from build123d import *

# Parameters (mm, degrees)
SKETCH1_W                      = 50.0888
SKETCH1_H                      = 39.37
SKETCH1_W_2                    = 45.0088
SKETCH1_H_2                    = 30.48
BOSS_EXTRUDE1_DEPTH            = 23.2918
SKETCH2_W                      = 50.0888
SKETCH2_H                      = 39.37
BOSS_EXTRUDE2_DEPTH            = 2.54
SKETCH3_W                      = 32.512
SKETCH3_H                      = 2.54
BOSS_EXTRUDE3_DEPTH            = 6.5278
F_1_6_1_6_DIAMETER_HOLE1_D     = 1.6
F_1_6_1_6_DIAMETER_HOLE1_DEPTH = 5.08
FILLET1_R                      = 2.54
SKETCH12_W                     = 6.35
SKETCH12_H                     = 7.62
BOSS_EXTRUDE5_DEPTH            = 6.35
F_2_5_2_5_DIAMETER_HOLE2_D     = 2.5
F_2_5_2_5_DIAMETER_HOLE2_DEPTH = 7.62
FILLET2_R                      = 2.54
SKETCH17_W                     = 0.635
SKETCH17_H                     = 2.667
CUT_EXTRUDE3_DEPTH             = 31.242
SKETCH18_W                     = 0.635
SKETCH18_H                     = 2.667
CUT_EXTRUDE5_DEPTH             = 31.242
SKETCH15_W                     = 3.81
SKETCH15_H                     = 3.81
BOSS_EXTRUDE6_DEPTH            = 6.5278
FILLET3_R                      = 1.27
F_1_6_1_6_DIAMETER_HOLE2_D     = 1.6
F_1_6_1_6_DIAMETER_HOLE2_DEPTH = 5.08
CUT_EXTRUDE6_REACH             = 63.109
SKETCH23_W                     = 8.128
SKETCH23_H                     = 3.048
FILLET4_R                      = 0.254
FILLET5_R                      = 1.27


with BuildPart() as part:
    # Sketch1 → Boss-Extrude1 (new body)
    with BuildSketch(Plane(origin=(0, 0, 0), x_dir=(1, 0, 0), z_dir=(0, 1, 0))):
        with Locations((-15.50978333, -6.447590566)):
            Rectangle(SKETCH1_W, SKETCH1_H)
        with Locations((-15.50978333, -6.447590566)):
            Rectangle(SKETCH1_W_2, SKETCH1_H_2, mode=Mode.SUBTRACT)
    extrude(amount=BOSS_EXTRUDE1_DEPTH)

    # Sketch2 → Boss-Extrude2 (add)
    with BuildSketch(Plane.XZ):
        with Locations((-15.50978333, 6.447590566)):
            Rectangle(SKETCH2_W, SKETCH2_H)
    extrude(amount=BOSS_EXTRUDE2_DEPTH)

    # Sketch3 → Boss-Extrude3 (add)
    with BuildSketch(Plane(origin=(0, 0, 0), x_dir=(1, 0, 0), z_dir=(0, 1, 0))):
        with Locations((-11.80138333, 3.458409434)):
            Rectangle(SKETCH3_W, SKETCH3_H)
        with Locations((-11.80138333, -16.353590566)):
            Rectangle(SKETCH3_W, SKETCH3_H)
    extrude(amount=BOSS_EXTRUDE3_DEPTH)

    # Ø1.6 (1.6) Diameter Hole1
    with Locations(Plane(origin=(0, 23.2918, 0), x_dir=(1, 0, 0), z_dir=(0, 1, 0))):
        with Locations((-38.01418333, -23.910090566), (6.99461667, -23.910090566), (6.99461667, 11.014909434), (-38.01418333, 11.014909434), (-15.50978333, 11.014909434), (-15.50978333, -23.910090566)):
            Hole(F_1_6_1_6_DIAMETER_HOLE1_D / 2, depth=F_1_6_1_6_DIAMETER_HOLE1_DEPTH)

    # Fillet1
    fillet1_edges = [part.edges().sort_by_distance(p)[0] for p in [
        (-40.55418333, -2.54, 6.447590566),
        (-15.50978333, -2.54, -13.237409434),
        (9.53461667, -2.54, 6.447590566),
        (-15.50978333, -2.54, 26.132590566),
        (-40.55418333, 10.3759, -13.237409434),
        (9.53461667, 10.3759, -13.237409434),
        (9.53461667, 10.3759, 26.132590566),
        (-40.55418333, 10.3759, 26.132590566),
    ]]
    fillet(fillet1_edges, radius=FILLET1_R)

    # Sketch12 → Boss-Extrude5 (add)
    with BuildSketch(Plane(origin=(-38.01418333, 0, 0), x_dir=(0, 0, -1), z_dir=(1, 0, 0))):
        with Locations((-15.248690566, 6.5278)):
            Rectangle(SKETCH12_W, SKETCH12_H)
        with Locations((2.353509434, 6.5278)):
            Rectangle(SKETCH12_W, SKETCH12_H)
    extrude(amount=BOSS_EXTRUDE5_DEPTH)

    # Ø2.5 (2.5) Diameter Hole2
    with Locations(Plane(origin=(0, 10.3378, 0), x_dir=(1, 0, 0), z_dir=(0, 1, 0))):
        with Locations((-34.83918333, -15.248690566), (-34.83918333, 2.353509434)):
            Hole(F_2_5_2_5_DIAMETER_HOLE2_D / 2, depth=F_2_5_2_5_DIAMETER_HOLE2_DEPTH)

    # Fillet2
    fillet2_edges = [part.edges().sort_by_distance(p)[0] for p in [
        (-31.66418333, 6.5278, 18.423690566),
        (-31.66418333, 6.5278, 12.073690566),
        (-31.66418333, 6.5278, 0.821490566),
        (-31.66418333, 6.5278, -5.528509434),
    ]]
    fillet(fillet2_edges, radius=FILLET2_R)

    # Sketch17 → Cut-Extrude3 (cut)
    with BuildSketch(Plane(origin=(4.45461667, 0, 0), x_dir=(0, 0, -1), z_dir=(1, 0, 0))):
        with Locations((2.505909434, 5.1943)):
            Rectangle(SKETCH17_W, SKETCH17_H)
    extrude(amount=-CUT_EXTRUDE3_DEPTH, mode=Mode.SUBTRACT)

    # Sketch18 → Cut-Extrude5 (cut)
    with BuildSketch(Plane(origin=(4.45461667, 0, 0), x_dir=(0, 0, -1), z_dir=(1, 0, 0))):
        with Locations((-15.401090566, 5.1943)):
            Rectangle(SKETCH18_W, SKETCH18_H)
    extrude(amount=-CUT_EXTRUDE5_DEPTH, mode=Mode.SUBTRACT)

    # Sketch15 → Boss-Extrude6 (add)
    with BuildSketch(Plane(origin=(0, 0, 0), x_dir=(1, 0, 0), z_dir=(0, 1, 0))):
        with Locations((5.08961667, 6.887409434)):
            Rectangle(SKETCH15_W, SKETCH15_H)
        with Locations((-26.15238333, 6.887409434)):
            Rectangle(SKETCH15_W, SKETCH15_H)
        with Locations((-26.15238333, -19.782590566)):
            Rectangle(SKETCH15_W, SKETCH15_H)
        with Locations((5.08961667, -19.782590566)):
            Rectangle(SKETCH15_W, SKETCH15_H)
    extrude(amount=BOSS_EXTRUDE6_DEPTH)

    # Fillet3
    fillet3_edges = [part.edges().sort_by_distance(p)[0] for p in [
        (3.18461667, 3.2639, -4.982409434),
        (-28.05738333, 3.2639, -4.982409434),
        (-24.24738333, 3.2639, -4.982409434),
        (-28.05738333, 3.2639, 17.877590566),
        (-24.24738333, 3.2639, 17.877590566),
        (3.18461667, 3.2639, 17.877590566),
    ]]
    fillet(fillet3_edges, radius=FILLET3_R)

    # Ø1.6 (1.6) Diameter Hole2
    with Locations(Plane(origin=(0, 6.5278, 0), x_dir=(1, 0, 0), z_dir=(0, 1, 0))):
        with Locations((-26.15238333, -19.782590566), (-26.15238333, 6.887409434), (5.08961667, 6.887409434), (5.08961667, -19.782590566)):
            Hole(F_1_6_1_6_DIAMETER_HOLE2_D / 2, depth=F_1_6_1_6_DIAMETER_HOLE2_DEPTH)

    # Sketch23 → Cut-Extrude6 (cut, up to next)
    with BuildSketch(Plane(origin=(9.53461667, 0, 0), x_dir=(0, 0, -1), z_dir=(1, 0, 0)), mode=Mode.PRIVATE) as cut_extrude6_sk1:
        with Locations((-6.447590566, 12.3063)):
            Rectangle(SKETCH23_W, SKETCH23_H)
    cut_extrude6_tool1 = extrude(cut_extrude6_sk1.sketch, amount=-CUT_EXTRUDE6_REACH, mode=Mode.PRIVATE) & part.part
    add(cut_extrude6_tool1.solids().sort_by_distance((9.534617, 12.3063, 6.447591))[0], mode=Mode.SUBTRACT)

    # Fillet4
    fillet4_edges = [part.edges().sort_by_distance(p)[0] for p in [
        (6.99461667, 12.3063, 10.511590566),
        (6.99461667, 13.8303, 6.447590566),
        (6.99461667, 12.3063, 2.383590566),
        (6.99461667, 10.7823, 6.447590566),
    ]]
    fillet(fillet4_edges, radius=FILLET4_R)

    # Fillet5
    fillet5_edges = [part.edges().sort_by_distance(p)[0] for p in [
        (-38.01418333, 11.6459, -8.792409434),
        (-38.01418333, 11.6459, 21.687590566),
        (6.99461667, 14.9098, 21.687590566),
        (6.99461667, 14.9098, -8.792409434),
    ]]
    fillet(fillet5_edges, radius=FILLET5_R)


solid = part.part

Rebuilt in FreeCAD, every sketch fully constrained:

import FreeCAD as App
import Part
import Sketcher
Q = App.Units.Quantity


def edges_at(feature, points):
    """Names of the edges that pass closest to the given points."""
    edges = feature.Shape.Edges
    near = lambda p: min(range(len(edges)), key=lambda i: edges[i].distToShape(Part.Vertex(*p))[0])
    return sorted({f"Edge{near(p) + 1}" for p in points})

doc = App.newDocument("Part")
body = doc.addObject("PartDesign::Body", "Body")

sketch1 = body.newObject("Sketcher::SketchObject", "Sketch")
sketch1.AttachmentSupport = (doc.getObject("XZ_Plane"), [""])
sketch1.MapMode = "FlatFace"
sketch1.addGeometry(Part.LineSegment(App.Vector(-41, -13, 0), App.Vector(-41, 26, 0)), False)
sketch1.addGeometry(Part.LineSegment(App.Vector(-41, 26, 0), App.Vector(10, 26, 0)), False)
sketch1.addGeometry(Part.LineSegment(App.Vector(10, 26, 0), App.Vector(10, -13, 0)), False)
sketch1.addGeometry(Part.LineSegment(App.Vector(10, -13, 0), App.Vector(-41, -13, 0)), False)
sketch1.addGeometry(Part.LineSegment(App.Vector(7, 22, 0), App.Vector(-38, 22, 0)), False)
sketch1.addGeometry(Part.LineSegment(App.Vector(-38, 22, 0), App.Vector(-38, -9, 0)), False)
sketch1.addGeometry(Part.LineSegment(App.Vector(-38, -9, 0), App.Vector(7, -9, 0)), False)
sketch1.addGeometry(Part.LineSegment(App.Vector(7, -9, 0), App.Vector(7, 22, 0)), False)
sketch1.addConstraint(Sketcher.Constraint("Coincident", 0, 2, 1, 1))
sketch1.addConstraint(Sketcher.Constraint("Coincident", 1, 2, 2, 1))
sketch1.addConstraint(Sketcher.Constraint("Coincident", 2, 2, 3, 1))
sketch1.addConstraint(Sketcher.Constraint("Coincident", 3, 2, 0, 1))
sketch1.addConstraint(Sketcher.Constraint("Coincident", 4, 2, 5, 1))
sketch1.addConstraint(Sketcher.Constraint("Coincident", 5, 2, 6, 1))
sketch1.addConstraint(Sketcher.Constraint("Coincident", 6, 2, 7, 1))
sketch1.addConstraint(Sketcher.Constraint("Coincident", 7, 2, 4, 1))
sketch1.addConstraint(Sketcher.Constraint("Vertical", 0))
sketch1.addConstraint(Sketcher.Constraint("Horizontal", 1))
sketch1.addConstraint(Sketcher.Constraint("Vertical", 2))
sketch1.addConstraint(Sketcher.Constraint("Horizontal", 3))
sketch1.addConstraint(Sketcher.Constraint("Horizontal", 4))
sketch1.addConstraint(Sketcher.Constraint("Vertical", 5))
sketch1.addConstraint(Sketcher.Constraint("Horizontal", 6))
sketch1.addConstraint(Sketcher.Constraint("Vertical", 7))
sketch1.addConstraint(Sketcher.Constraint("DistanceY", 5, 2, 5, 1, Q("1.2 in")))
sketch1.addConstraint(Sketcher.Constraint("DistanceY", 0, 1, 0, 2, Q("1.55 in")))
sketch1.addConstraint(Sketcher.Constraint("DistanceX", 0, 2, 4, 2, Q("0.1 in")))
sketch1.addConstraint(Sketcher.Constraint("DistanceX", 6, 2, 2, 2, Q("0.1 in")))
sketch1.addConstraint(Sketcher.Constraint("DistanceX", 1, 1, 1, 2, Q("1.972 in")))
sketch1.addConstraint(Sketcher.Constraint("DistanceY", 4, 2, 0, 2, Q("0.175 in")))
sketch1.addConstraint(Sketcher.Constraint("DistanceY", -1, 1, 0, 2, 26.132591))
sketch1.addConstraint(Sketcher.Constraint("DistanceX", 0, 2, -1, 1, 40.554183))
pad1 = body.newObject("PartDesign::Pad", "Pad")
pad1.Profile = sketch1
pad1.Length = Q("0.917 in")
pad1.Reversed = True

sketch2 = body.newObject("Sketcher::SketchObject", "Sketch001")
sketch2.AttachmentSupport = (doc.getObject("XZ_Plane"), [""])
sketch2.MapMode = "FlatFace"
sketch2.addGeometry(Part.LineSegment(App.Vector(-41, 26, 0), App.Vector(-41, -13, 0)), False)
sketch2.addGeometry(Part.LineSegment(App.Vector(-41, -13, 0), App.Vector(10, -13, 0)), False)
sketch2.addGeometry(Part.LineSegment(App.Vector(10, -13, 0), App.Vector(10, 26, 0)), False)
sketch2.addGeometry(Part.LineSegment(App.Vector(10, 26, 0), App.Vector(-41, 26, 0)), False)
sketch2.addConstraint(Sketcher.Constraint("Coincident", 0, 2, 1, 1))
sketch2.addConstraint(Sketcher.Constraint("Coincident", 1, 2, 2, 1))
sketch2.addConstraint(Sketcher.Constraint("Coincident", 2, 2, 3, 1))
sketch2.addConstraint(Sketcher.Constraint("Coincident", 3, 2, 0, 1))
sketch2.addConstraint(Sketcher.Constraint("Vertical", 0))
sketch2.addConstraint(Sketcher.Constraint("Horizontal", 1))
sketch2.addConstraint(Sketcher.Constraint("Vertical", 2))
sketch2.addConstraint(Sketcher.Constraint("Horizontal", 3))
sketch2.addConstraint(Sketcher.Constraint("DistanceY", 0, 2, 0, 1, Q("1.55 in")))
sketch2.addConstraint(Sketcher.Constraint("DistanceX", 1, 1, 1, 2, Q("1.972 in")))
sketch2.addConstraint(Sketcher.Constraint("DistanceY", 0, 2, -1, 1, 13.237409))
sketch2.addConstraint(Sketcher.Constraint("DistanceX", 0, 2, -1, 1, 40.554183))
pad2 = body.newObject("PartDesign::Pad", "Pad001")
pad2.Profile = sketch2
pad2.Length = Q("0.1 in")

sketch3 = body.newObject("Sketcher::SketchObject", "Sketch002")
sketch3.AttachmentSupport = (doc.getObject("XZ_Plane"), [""])
sketch3.MapMode = "FlatFace"
sketch3.addGeometry(Part.LineSegment(App.Vector(-28.1, -4.7, 0), App.Vector(-28.1, -2.2, 0)), False)
sketch3.addGeometry(Part.LineSegment(App.Vector(-28.1, -2.2, 0), App.Vector(4.5, -2.2, 0)), False)
sketch3.addGeometry(Part.LineSegment(App.Vector(4.5, -2.2, 0), App.Vector(4.5, -4.7, 0)), False)
sketch3.addGeometry(Part.LineSegment(App.Vector(4.5, -4.7, 0), App.Vector(-28.1, -4.7, 0)), False)
sketch3.addGeometry(Part.LineSegment(App.Vector(-28.1, 15.1, 0), App.Vector(-28.1, 17.6, 0)), False)
sketch3.addGeometry(Part.LineSegment(App.Vector(-28.1, 17.6, 0), App.Vector(4.5, 17.6, 0)), False)
sketch3.addGeometry(Part.LineSegment(App.Vector(4.5, 17.6, 0), App.Vector(4.5, 15.1, 0)), False)
sketch3.addGeometry(Part.LineSegment(App.Vector(4.5, 15.1, 0), App.Vector(-28.1, 15.1, 0)), False)
sketch3.addConstraint(Sketcher.Constraint("Coincident", 0, 2, 1, 1))
sketch3.addConstraint(Sketcher.Constraint("Coincident", 1, 2, 2, 1))
sketch3.addConstraint(Sketcher.Constraint("Coincident", 2, 2, 3, 1))
sketch3.addConstraint(Sketcher.Constraint("Coincident", 3, 2, 0, 1))
sketch3.addConstraint(Sketcher.Constraint("Coincident", 4, 2, 5, 1))
sketch3.addConstraint(Sketcher.Constraint("Coincident", 5, 2, 6, 1))
sketch3.addConstraint(Sketcher.Constraint("Coincident", 6, 2, 7, 1))
sketch3.addConstraint(Sketcher.Constraint("Coincident", 7, 2, 4, 1))
sketch3.addConstraint(Sketcher.Constraint("Vertical", 0))
sketch3.addConstraint(Sketcher.Constraint("Horizontal", 1))
sketch3.addConstraint(Sketcher.Constraint("Vertical", 2))
sketch3.addConstraint(Sketcher.Constraint("Horizontal", 3))
sketch3.addConstraint(Sketcher.Constraint("Vertical", 4))
sketch3.addConstraint(Sketcher.Constraint("Horizontal", 5))
sketch3.addConstraint(Sketcher.Constraint("Vertical", 6))
sketch3.addConstraint(Sketcher.Constraint("Horizontal", 7))
sketch3.addConstraint(Sketcher.Constraint("Vertical", 3, 2, 4, 2))
sketch3.addConstraint(Sketcher.Constraint("Vertical", 2, 2, 5, 2))
sketch3.addConstraint(Sketcher.Constraint("Equal", 2, 4))
sketch3.addConstraint(Sketcher.Constraint("DistanceY", 0, 1, 0, 2, Q("0.1 in")))
sketch3.addConstraint(Sketcher.Constraint("DistanceX", 1, 1, 1, 2, Q("1.28 in")))
sketch3.addConstraint(Sketcher.Constraint("DistanceY", 0, 2, 4, 2, Q("0.78 in")))
sketch3.addConstraint(Sketcher.Constraint("DistanceY", 0, 2, -1, 1, 2.188409))
sketch3.addConstraint(Sketcher.Constraint("DistanceX", 0, 2, -1, 1, 28.057383))
pad3 = body.newObject("PartDesign::Pad", "Pad002")
pad3.Profile = sketch3
pad3.Length = Q("0.257 in")
pad3.Reversed = True

sketch4 = body.newObject("Sketcher::SketchObject", "Sketch003")
sketch4.AttachmentSupport = (doc.getObject("XZ_Plane"), [""])
sketch4.MapMode = "FlatFace"
sketch4.AttachmentOffset = App.Placement(App.Vector(0, 0, -0.917 * 25.4), App.Rotation())
sketch4.addGeometry(Part.Circle(App.Vector(-38, 23.9, 0), App.Vector(0, 0, 1), 0.8), False)
sketch4.addGeometry(Part.Circle(App.Vector(7, 23.9, 0), App.Vector(0, 0, 1), 0.8), False)
sketch4.addGeometry(Part.Circle(App.Vector(7, -11, 0), App.Vector(0, 0, 1), 0.8), False)
sketch4.addGeometry(Part.Circle(App.Vector(-38, -11, 0), App.Vector(0, 0, 1), 0.8), False)
sketch4.addGeometry(Part.Circle(App.Vector(-15.5, -11, 0), App.Vector(0, 0, 1), 0.8), False)
sketch4.addGeometry(Part.Circle(App.Vector(-15.5, 23.9, 0), App.Vector(0, 0, 1), 0.8), False)
sketch4.addConstraint(Sketcher.Constraint("Equal", 0, 1))
sketch4.addConstraint(Sketcher.Constraint("Equal", 1, 2))
sketch4.addConstraint(Sketcher.Constraint("Equal", 2, 3))
sketch4.addConstraint(Sketcher.Constraint("Equal", 3, 4))
sketch4.addConstraint(Sketcher.Constraint("Equal", 4, 5))
sketch4.addConstraint(Sketcher.Constraint("Horizontal", 0, 3, 1, 3))
sketch4.addConstraint(Sketcher.Constraint("Horizontal", 2, 3, 3, 3))
sketch4.addConstraint(Sketcher.Constraint("Horizontal", 3, 3, 4, 3))
sketch4.addConstraint(Sketcher.Constraint("Horizontal", 1, 3, 5, 3))
sketch4.addConstraint(Sketcher.Constraint("Vertical", 1, 3, 2, 3))
sketch4.addConstraint(Sketcher.Constraint("Vertical", 0, 3, 3, 3))
sketch4.addConstraint(Sketcher.Constraint("Vertical", 4, 3, 5, 3))
sketch4.addConstraint(Sketcher.Constraint("Diameter", 0, 1.6))
sketch4.addConstraint(Sketcher.Constraint("DistanceX", 0, 3, 1, 3, Q("1.772 in")))
sketch4.addConstraint(Sketcher.Constraint("DistanceY", 2, 3, 1, 3, Q("1.375 in")))
sketch4.addConstraint(Sketcher.Constraint("DistanceX", 4, 3, 2, 3, Q("0.886 in")))
sketch4.addConstraint(Sketcher.Constraint("DistanceY", -1, 1, 0, 3, 23.910091))
sketch4.addConstraint(Sketcher.Constraint("DistanceX", 0, 3, -1, 1, 38.014183))
doc.recompute()
hole = body.newObject("PartDesign::Hole", "Hole")
hole.Profile = sketch4
hole.ThreadType = "None"
hole.Diameter = 1.6
hole.DepthType = "Dimension"
hole.Depth = Q("0.2 in")
hole.DrillPoint = "Flat"
hole.Reversed = True
doc.recompute()

fillet = body.newObject("PartDesign::Fillet", "Fillet")
fillet.Base = (hole, edges_at(hole, [
    (-40.554, -2.54, 6.448),
    (-15.51, -2.54, -13.237),
    (9.535, -2.54, 6.448),
    (-15.51, -2.54, 26.133),
    (-40.554, 10.376, -13.237),
    (9.535, 10.376, -13.237),
    (9.535, 10.376, 26.133),
    (-40.554, 10.376, 26.133),
]))
fillet.Radius = Q("0.1 in")

sketch5 = body.newObject("Sketcher::SketchObject", "Sketch004")
sketch5.AttachmentSupport = (doc.getObject("YZ_Plane"), [""])
sketch5.MapMode = "FlatFace"
sketch5.AttachmentOffset = App.Placement(App.Vector(0, 0, -38.014183), App.Rotation())
sketch5.addGeometry(Part.LineSegment(App.Vector(10, 18, 0), App.Vector(3, 18, 0)), False)
sketch5.addGeometry(Part.LineSegment(App.Vector(3, 18, 0), App.Vector(3, 12, 0)), False)
sketch5.addGeometry(Part.LineSegment(App.Vector(3, 12, 0), App.Vector(10, 12, 0)), False)
sketch5.addGeometry(Part.LineSegment(App.Vector(10, 12, 0), App.Vector(10, 18, 0)), False)
sketch5.addGeometry(Part.LineSegment(App.Vector(10, 1, 0), App.Vector(3, 1, 0)), False)
sketch5.addGeometry(Part.LineSegment(App.Vector(3, 1, 0), App.Vector(3, -6, 0)), False)
sketch5.addGeometry(Part.LineSegment(App.Vector(3, -6, 0), App.Vector(10, -6, 0)), False)
sketch5.addGeometry(Part.LineSegment(App.Vector(10, -6, 0), App.Vector(10, 1, 0)), False)
sketch5.addConstraint(Sketcher.Constraint("Coincident", 0, 2, 1, 1))
sketch5.addConstraint(Sketcher.Constraint("Coincident", 1, 2, 2, 1))
sketch5.addConstraint(Sketcher.Constraint("Coincident", 2, 2, 3, 1))
sketch5.addConstraint(Sketcher.Constraint("Coincident", 3, 2, 0, 1))
sketch5.addConstraint(Sketcher.Constraint("Coincident", 4, 2, 5, 1))
sketch5.addConstraint(Sketcher.Constraint("Coincident", 5, 2, 6, 1))
sketch5.addConstraint(Sketcher.Constraint("Coincident", 6, 2, 7, 1))
sketch5.addConstraint(Sketcher.Constraint("Coincident", 7, 2, 4, 1))
sketch5.addConstraint(Sketcher.Constraint("Horizontal", 0))
sketch5.addConstraint(Sketcher.Constraint("Vertical", 1))
sketch5.addConstraint(Sketcher.Constraint("Horizontal", 2))
sketch5.addConstraint(Sketcher.Constraint("Vertical", 3))
sketch5.addConstraint(Sketcher.Constraint("Horizontal", 4))
sketch5.addConstraint(Sketcher.Constraint("Vertical", 5))
sketch5.addConstraint(Sketcher.Constraint("Horizontal", 6))
sketch5.addConstraint(Sketcher.Constraint("Vertical", 7))
sketch5.addConstraint(Sketcher.Constraint("Vertical", 1, 2, 4, 2))
sketch5.addConstraint(Sketcher.Constraint("Vertical", 3, 2, 6, 2))
sketch5.addConstraint(Sketcher.Constraint("Equal", 3, 5))
sketch5.addConstraint(Sketcher.Constraint("DistanceX", 0, 2, 0, 1, Q("0.3 in")))
sketch5.addConstraint(Sketcher.Constraint("DistanceY", 1, 2, 1, 1, Q("0.25 in")))
sketch5.addConstraint(Sketcher.Constraint("DistanceX", -1, 1, 0, 2, Q("0.107 in")))
sketch5.addConstraint(Sketcher.Constraint("DistanceY", 4, 2, 1, 2, Q("0.443 in")))
sketch5.addConstraint(Sketcher.Constraint("DistanceY", -1, 1, 0, 2, 18.423691))
pad4 = body.newObject("PartDesign::Pad", "Pad003")
pad4.Profile = sketch5
pad4.Length = Q("0.25 in")

sketch6 = body.newObject("Sketcher::SketchObject", "Sketch005")
sketch6.AttachmentSupport = (doc.getObject("XZ_Plane"), [""])
sketch6.MapMode = "FlatFace"
sketch6.AttachmentOffset = App.Placement(App.Vector(0, 0, -0.407 * 25.4), App.Rotation())
sketch6.addGeometry(Part.Circle(App.Vector(-34.8, 15.2, 0), App.Vector(0, 0, 1), 1.2), False)
sketch6.addGeometry(Part.Circle(App.Vector(-34.8, -2.4, 0), App.Vector(0, 0, 1), 1.2), False)
sketch6.addConstraint(Sketcher.Constraint("Equal", 0, 1))
sketch6.addConstraint(Sketcher.Constraint("Vertical", 0, 3, 1, 3))
sketch6.addConstraint(Sketcher.Constraint("Diameter", 0, 2.5))
sketch6.addConstraint(Sketcher.Constraint("DistanceY", 1, 3, 0, 3, Q("0.693 in")))
sketch6.addConstraint(Sketcher.Constraint("DistanceY", -1, 1, 0, 3, 15.248691))
sketch6.addConstraint(Sketcher.Constraint("DistanceX", 0, 3, -1, 1, 34.839183))
doc.recompute()
hole2 = body.newObject("PartDesign::Hole", "Hole001")
hole2.Profile = sketch6
hole2.ThreadType = "None"
hole2.Diameter = 2.5
hole2.DepthType = "Dimension"
hole2.Depth = Q("0.3 in")
hole2.DrillPoint = "Flat"
hole2.Reversed = True
doc.recompute()

fillet2 = body.newObject("PartDesign::Fillet", "Fillet001")
fillet2.Base = (hole2, edges_at(hole2, [
    (-31.664, 6.528, 18.424),
    (-31.664, 6.528, 12.074),
    (-31.664, 6.528, 0.821),
    (-31.664, 6.528, -5.529),
]))
fillet2.Radius = Q("0.1 in")

sketch7 = body.newObject("Sketcher::SketchObject", "Sketch006")
sketch7.AttachmentSupport = (doc.getObject("YZ_Plane"), [""])
sketch7.MapMode = "FlatFace"
sketch7.AttachmentOffset = App.Placement(App.Vector(0, 0, 4.454617), App.Rotation())
sketch7.addGeometry(Part.LineSegment(App.Vector(6.5, -2.2, 0), App.Vector(3.9, -2.2, 0)), False)
sketch7.addGeometry(Part.LineSegment(App.Vector(3.9, -2.2, 0), App.Vector(3.9, -2.8, 0)), False)
sketch7.addGeometry(Part.LineSegment(App.Vector(3.9, -2.8, 0), App.Vector(6.5, -2.8, 0)), False)
sketch7.addGeometry(Part.LineSegment(App.Vector(6.5, -2.8, 0), App.Vector(6.5, -2.2, 0)), False)
sketch7.addConstraint(Sketcher.Constraint("Coincident", 0, 2, 1, 1))
sketch7.addConstraint(Sketcher.Constraint("Coincident", 1, 2, 2, 1))
sketch7.addConstraint(Sketcher.Constraint("Coincident", 2, 2, 3, 1))
sketch7.addConstraint(Sketcher.Constraint("Coincident", 3, 2, 0, 1))
sketch7.addConstraint(Sketcher.Constraint("Horizontal", 0))
sketch7.addConstraint(Sketcher.Constraint("Vertical", 1))
sketch7.addConstraint(Sketcher.Constraint("Horizontal", 2))
sketch7.addConstraint(Sketcher.Constraint("Vertical", 3))
sketch7.addConstraint(Sketcher.Constraint("DistanceX", 0, 2, 0, 1, Q("0.105 in")))
sketch7.addConstraint(Sketcher.Constraint("DistanceY", 1, 2, 1, 1, Q("0.025 in")))
sketch7.addConstraint(Sketcher.Constraint("DistanceX", -1, 1, 0, 2, Q("0.152 in")))
sketch7.addConstraint(Sketcher.Constraint("DistanceY", 0, 2, -1, 1, 2.188409))
pocket1 = body.newObject("PartDesign::Pocket", "Pocket")
pocket1.Profile = sketch7
pocket1.Length = Q("1.23 in")

sketch8 = body.newObject("Sketcher::SketchObject", "Sketch007")
sketch8.AttachmentSupport = (doc.getObject("YZ_Plane"), [""])
sketch8.MapMode = "FlatFace"
sketch8.AttachmentOffset = App.Placement(App.Vector(0, 0, 4.454617), App.Rotation())
sketch8.addGeometry(Part.LineSegment(App.Vector(6.5, 15.7, 0), App.Vector(3.9, 15.7, 0)), False)
sketch8.addGeometry(Part.LineSegment(App.Vector(3.9, 15.7, 0), App.Vector(3.9, 15.1, 0)), False)
sketch8.addGeometry(Part.LineSegment(App.Vector(3.9, 15.1, 0), App.Vector(6.5, 15.1, 0)), False)
sketch8.addGeometry(Part.LineSegment(App.Vector(6.5, 15.1, 0), App.Vector(6.5, 15.7, 0)), False)
sketch8.addConstraint(Sketcher.Constraint("Coincident", 0, 2, 1, 1))
sketch8.addConstraint(Sketcher.Constraint("Coincident", 1, 2, 2, 1))
sketch8.addConstraint(Sketcher.Constraint("Coincident", 2, 2, 3, 1))
sketch8.addConstraint(Sketcher.Constraint("Coincident", 3, 2, 0, 1))
sketch8.addConstraint(Sketcher.Constraint("Horizontal", 0))
sketch8.addConstraint(Sketcher.Constraint("Vertical", 1))
sketch8.addConstraint(Sketcher.Constraint("Horizontal", 2))
sketch8.addConstraint(Sketcher.Constraint("Vertical", 3))
sketch8.addConstraint(Sketcher.Constraint("DistanceX", 0, 2, 0, 1, Q("0.105 in")))
sketch8.addConstraint(Sketcher.Constraint("DistanceY", 1, 2, 1, 1, Q("0.025 in")))
sketch8.addConstraint(Sketcher.Constraint("DistanceX", -1, 1, 0, 2, Q("0.152 in")))
sketch8.addConstraint(Sketcher.Constraint("DistanceY", -1, 1, 0, 2, 15.718591))
pocket2 = body.newObject("PartDesign::Pocket", "Pocket001")
pocket2.Profile = sketch8
pocket2.Length = Q("1.23 in")

sketch9 = body.newObject("Sketcher::SketchObject", "Sketch008")
sketch9.AttachmentSupport = (doc.getObject("XZ_Plane"), [""])
sketch9.MapMode = "FlatFace"
sketch9.addGeometry(Part.LineSegment(App.Vector(3.2, -8.8, 0), App.Vector(3.2, -5, 0)), False)
sketch9.addGeometry(Part.LineSegment(App.Vector(3.2, -5, 0), App.Vector(7, -5, 0)), False)
sketch9.addGeometry(Part.LineSegment(App.Vector(7, -5, 0), App.Vector(7, -8.8, 0)), False)
sketch9.addGeometry(Part.LineSegment(App.Vector(7, -8.8, 0), App.Vector(3.2, -8.8, 0)), False)
sketch9.addGeometry(Part.LineSegment(App.Vector(-28.1, -8.8, 0), App.Vector(-28.1, -5, 0)), False)
sketch9.addGeometry(Part.LineSegment(App.Vector(-28.1, -5, 0), App.Vector(-24.2, -5, 0)), False)
sketch9.addGeometry(Part.LineSegment(App.Vector(-24.2, -5, 0), App.Vector(-24.2, -8.8, 0)), False)
sketch9.addGeometry(Part.LineSegment(App.Vector(-24.2, -8.8, 0), App.Vector(-28.1, -8.8, 0)), False)
sketch9.addGeometry(Part.LineSegment(App.Vector(-28.1, 17.9, 0), App.Vector(-28.1, 21.7, 0)), False)
sketch9.addGeometry(Part.LineSegment(App.Vector(-28.1, 21.7, 0), App.Vector(-24.2, 21.7, 0)), False)
sketch9.addGeometry(Part.LineSegment(App.Vector(-24.2, 21.7, 0), App.Vector(-24.2, 17.9, 0)), False)
sketch9.addGeometry(Part.LineSegment(App.Vector(-24.2, 17.9, 0), App.Vector(-28.1, 17.9, 0)), False)
sketch9.addGeometry(Part.LineSegment(App.Vector(3.2, 17.9, 0), App.Vector(3.2, 21.7, 0)), False)
sketch9.addGeometry(Part.LineSegment(App.Vector(3.2, 21.7, 0), App.Vector(7, 21.7, 0)), False)
sketch9.addGeometry(Part.LineSegment(App.Vector(7, 21.7, 0), App.Vector(7, 17.9, 0)), False)
sketch9.addGeometry(Part.LineSegment(App.Vector(7, 17.9, 0), App.Vector(3.2, 17.9, 0)), False)
sketch9.addConstraint(Sketcher.Constraint("Coincident", 0, 2, 1, 1))
sketch9.addConstraint(Sketcher.Constraint("Coincident", 1, 2, 2, 1))
sketch9.addConstraint(Sketcher.Constraint("Coincident", 2, 2, 3, 1))
sketch9.addConstraint(Sketcher.Constraint("Coincident", 3, 2, 0, 1))
sketch9.addConstraint(Sketcher.Constraint("Coincident", 4, 2, 5, 1))
sketch9.addConstraint(Sketcher.Constraint("Coincident", 5, 2, 6, 1))
sketch9.addConstraint(Sketcher.Constraint("Coincident", 6, 2, 7, 1))
sketch9.addConstraint(Sketcher.Constraint("Coincident", 7, 2, 4, 1))
sketch9.addConstraint(Sketcher.Constraint("Coincident", 8, 2, 9, 1))
sketch9.addConstraint(Sketcher.Constraint("Coincident", 9, 2, 10, 1))
sketch9.addConstraint(Sketcher.Constraint("Coincident", 10, 2, 11, 1))
sketch9.addConstraint(Sketcher.Constraint("Coincident", 11, 2, 8, 1))
sketch9.addConstraint(Sketcher.Constraint("Coincident", 12, 2, 13, 1))
sketch9.addConstraint(Sketcher.Constraint("Coincident", 13, 2, 14, 1))
sketch9.addConstraint(Sketcher.Constraint("Coincident", 14, 2, 15, 1))
sketch9.addConstraint(Sketcher.Constraint("Coincident", 15, 2, 12, 1))
sketch9.addConstraint(Sketcher.Constraint("Vertical", 0))
sketch9.addConstraint(Sketcher.Constraint("Horizontal", 1))
sketch9.addConstraint(Sketcher.Constraint("Vertical", 2))
sketch9.addConstraint(Sketcher.Constraint("Horizontal", 3))
sketch9.addConstraint(Sketcher.Constraint("Vertical", 4))
sketch9.addConstraint(Sketcher.Constraint("Horizontal", 5))
sketch9.addConstraint(Sketcher.Constraint("Vertical", 6))
sketch9.addConstraint(Sketcher.Constraint("Horizontal", 7))
sketch9.addConstraint(Sketcher.Constraint("Vertical", 8))
sketch9.addConstraint(Sketcher.Constraint("Horizontal", 9))
sketch9.addConstraint(Sketcher.Constraint("Vertical", 10))
sketch9.addConstraint(Sketcher.Constraint("Horizontal", 11))
sketch9.addConstraint(Sketcher.Constraint("Vertical", 12))
sketch9.addConstraint(Sketcher.Constraint("Horizontal", 13))
sketch9.addConstraint(Sketcher.Constraint("Vertical", 14))
sketch9.addConstraint(Sketcher.Constraint("Horizontal", 15))
sketch9.addConstraint(Sketcher.Constraint("Horizontal", 1, 2, 4, 2))
sketch9.addConstraint(Sketcher.Constraint("Horizontal", 3, 2, 6, 2))
sketch9.addConstraint(Sketcher.Constraint("Horizontal", 9, 2, 12, 2))
sketch9.addConstraint(Sketcher.Constraint("Horizontal", 11, 2, 14, 2))
sketch9.addConstraint(Sketcher.Constraint("Vertical", 7, 2, 8, 2))
sketch9.addConstraint(Sketcher.Constraint("Vertical", 6, 2, 9, 2))
sketch9.addConstraint(Sketcher.Constraint("Vertical", 3, 2, 12, 2))
sketch9.addConstraint(Sketcher.Constraint("Vertical", 2, 2, 13, 2))
sketch9.addConstraint(Sketcher.Constraint("Equal", 3, 5))
sketch9.addConstraint(Sketcher.Constraint("Equal", 15, 0))
sketch9.addConstraint(Sketcher.Constraint("Equal", 6, 8))
sketch9.addConstraint(Sketcher.Constraint("DistanceX", 1, 1, 1, 2, Q("0.15 in")))
sketch9.addConstraint(Sketcher.Constraint("DistanceY", 7, 2, 8, 2, Q("1.2 in")))
sketch9.addConstraint(Sketcher.Constraint("DistanceX", 4, 2, 0, 2, Q("1.23 in")))
sketch9.addConstraint(Sketcher.Constraint("DistanceY", 0, 2, -1, 1, 4.982409))
sketch9.addConstraint(Sketcher.Constraint("DistanceX", -1, 1, 0, 2, 3.184617))
pad5 = body.newObject("PartDesign::Pad", "Pad004")
pad5.Profile = sketch9
pad5.Length = Q("0.257 in")
pad5.Reversed = True
doc.recompute()

fillet3 = body.newObject("PartDesign::Fillet", "Fillet002")
fillet3.Base = (pad5, edges_at(pad5, [
    (3.185, 3.264, -4.982),
    (-28.057, 3.264, -4.982),
    (-24.247, 3.264, -4.982),
    (-28.057, 3.264, 17.878),
    (-24.247, 3.264, 17.878),
    (3.185, 3.264, 17.878),
]))
fillet3.Radius = Q("0.05 in")

sketch10 = body.newObject("Sketcher::SketchObject", "Sketch009")
sketch10.AttachmentSupport = (doc.getObject("XZ_Plane"), [""])
sketch10.MapMode = "FlatFace"
sketch10.AttachmentOffset = App.Placement(App.Vector(0, 0, -0.257 * 25.4), App.Rotation())
sketch10.addGeometry(Part.Circle(App.Vector(-26.2, 19.8, 0), App.Vector(0, 0, 1), 0.8), False)
sketch10.addGeometry(Part.Circle(App.Vector(-26.2, -6.9, 0), App.Vector(0, 0, 1), 0.8), False)
sketch10.addGeometry(Part.Circle(App.Vector(5.1, -6.9, 0), App.Vector(0, 0, 1), 0.8), False)
sketch10.addGeometry(Part.Circle(App.Vector(5.1, 19.8, 0), App.Vector(0, 0, 1), 0.8), False)
sketch10.addConstraint(Sketcher.Constraint("Equal", 0, 1))
sketch10.addConstraint(Sketcher.Constraint("Equal", 1, 2))
sketch10.addConstraint(Sketcher.Constraint("Equal", 2, 3))
sketch10.addConstraint(Sketcher.Constraint("Horizontal", 1, 3, 2, 3))
sketch10.addConstraint(Sketcher.Constraint("Horizontal", 0, 3, 3, 3))
sketch10.addConstraint(Sketcher.Constraint("Vertical", 0, 3, 1, 3))
sketch10.addConstraint(Sketcher.Constraint("Vertical", 2, 3, 3, 3))
sketch10.addConstraint(Sketcher.Constraint("Diameter", 0, 1.6))
sketch10.addConstraint(Sketcher.Constraint("DistanceY", 1, 3, 0, 3, Q("1.05 in")))
sketch10.addConstraint(Sketcher.Constraint("DistanceX", 1, 3, 2, 3, Q("1.23 in")))
sketch10.addConstraint(Sketcher.Constraint("DistanceY", -1, 1, 0, 3, 19.782591))
sketch10.addConstraint(Sketcher.Constraint("DistanceX", 0, 3, -1, 1, 26.152383))
doc.recompute()
hole3 = body.newObject("PartDesign::Hole", "Hole002")
hole3.Profile = sketch10
hole3.ThreadType = "None"
hole3.Diameter = 1.6
hole3.DepthType = "Dimension"
hole3.Depth = Q("0.2 in")
hole3.DrillPoint = "Flat"
hole3.Reversed = True

sketch11 = body.newObject("Sketcher::SketchObject", "Sketch010")
sketch11.AttachmentSupport = (doc.getObject("YZ_Plane"), [""])
sketch11.MapMode = "FlatFace"
sketch11.AttachmentOffset = App.Placement(App.Vector(0, 0, 9.534617), App.Rotation())
sketch11.addGeometry(Part.LineSegment(App.Vector(13.8, 10.5, 0), App.Vector(10.8, 10.5, 0)), False)
sketch11.addGeometry(Part.LineSegment(App.Vector(10.8, 10.5, 0), App.Vector(10.8, 2.4, 0)), False)
sketch11.addGeometry(Part.LineSegment(App.Vector(10.8, 2.4, 0), App.Vector(13.8, 2.4, 0)), False)
sketch11.addGeometry(Part.LineSegment(App.Vector(13.8, 2.4, 0), App.Vector(13.8, 10.5, 0)), False)
sketch11.addConstraint(Sketcher.Constraint("Coincident", 0, 2, 1, 1))
sketch11.addConstraint(Sketcher.Constraint("Coincident", 1, 2, 2, 1))
sketch11.addConstraint(Sketcher.Constraint("Coincident", 2, 2, 3, 1))
sketch11.addConstraint(Sketcher.Constraint("Coincident", 3, 2, 0, 1))
sketch11.addConstraint(Sketcher.Constraint("Horizontal", 0))
sketch11.addConstraint(Sketcher.Constraint("Vertical", 1))
sketch11.addConstraint(Sketcher.Constraint("Horizontal", 2))
sketch11.addConstraint(Sketcher.Constraint("Vertical", 3))
sketch11.addConstraint(Sketcher.Constraint("DistanceX", 0, 2, 0, 1, Q("0.12 in")))
sketch11.addConstraint(Sketcher.Constraint("DistanceY", 1, 2, 1, 1, Q("0.32 in")))
sketch11.addConstraint(Sketcher.Constraint("DistanceX", -1, 1, 0, 2, Q("0.4245 in")))
sketch11.addConstraint(Sketcher.Constraint("DistanceY", -1, 1, 0, 2, 10.511591))
pocket3 = body.newObject("PartDesign::Pocket", "Pocket002")
pocket3.Profile = sketch11
pocket3.Type = "UpToFirst"
doc.recompute()

fillet4 = body.newObject("PartDesign::Fillet", "Fillet003")
fillet4.Base = (pocket3, edges_at(pocket3, [
    (6.995, 12.306, 10.512),
    (6.995, 13.83, 6.448),
    (6.995, 12.306, 2.384),
    (6.995, 10.782, 6.448),
]))
fillet4.Radius = Q("0.01 in")
doc.recompute()

fillet5 = body.newObject("PartDesign::Fillet", "Fillet004")
fillet5.Base = (fillet4, edges_at(fillet4, [
    (-38.014, 11.646, -8.792),
    (-38.014, 11.646, 21.688),
    (6.995, 14.91, 21.688),
    (6.995, 14.91, -8.792),
]))
fillet5.Radius = Q("0.05 in")

doc.recompute()
